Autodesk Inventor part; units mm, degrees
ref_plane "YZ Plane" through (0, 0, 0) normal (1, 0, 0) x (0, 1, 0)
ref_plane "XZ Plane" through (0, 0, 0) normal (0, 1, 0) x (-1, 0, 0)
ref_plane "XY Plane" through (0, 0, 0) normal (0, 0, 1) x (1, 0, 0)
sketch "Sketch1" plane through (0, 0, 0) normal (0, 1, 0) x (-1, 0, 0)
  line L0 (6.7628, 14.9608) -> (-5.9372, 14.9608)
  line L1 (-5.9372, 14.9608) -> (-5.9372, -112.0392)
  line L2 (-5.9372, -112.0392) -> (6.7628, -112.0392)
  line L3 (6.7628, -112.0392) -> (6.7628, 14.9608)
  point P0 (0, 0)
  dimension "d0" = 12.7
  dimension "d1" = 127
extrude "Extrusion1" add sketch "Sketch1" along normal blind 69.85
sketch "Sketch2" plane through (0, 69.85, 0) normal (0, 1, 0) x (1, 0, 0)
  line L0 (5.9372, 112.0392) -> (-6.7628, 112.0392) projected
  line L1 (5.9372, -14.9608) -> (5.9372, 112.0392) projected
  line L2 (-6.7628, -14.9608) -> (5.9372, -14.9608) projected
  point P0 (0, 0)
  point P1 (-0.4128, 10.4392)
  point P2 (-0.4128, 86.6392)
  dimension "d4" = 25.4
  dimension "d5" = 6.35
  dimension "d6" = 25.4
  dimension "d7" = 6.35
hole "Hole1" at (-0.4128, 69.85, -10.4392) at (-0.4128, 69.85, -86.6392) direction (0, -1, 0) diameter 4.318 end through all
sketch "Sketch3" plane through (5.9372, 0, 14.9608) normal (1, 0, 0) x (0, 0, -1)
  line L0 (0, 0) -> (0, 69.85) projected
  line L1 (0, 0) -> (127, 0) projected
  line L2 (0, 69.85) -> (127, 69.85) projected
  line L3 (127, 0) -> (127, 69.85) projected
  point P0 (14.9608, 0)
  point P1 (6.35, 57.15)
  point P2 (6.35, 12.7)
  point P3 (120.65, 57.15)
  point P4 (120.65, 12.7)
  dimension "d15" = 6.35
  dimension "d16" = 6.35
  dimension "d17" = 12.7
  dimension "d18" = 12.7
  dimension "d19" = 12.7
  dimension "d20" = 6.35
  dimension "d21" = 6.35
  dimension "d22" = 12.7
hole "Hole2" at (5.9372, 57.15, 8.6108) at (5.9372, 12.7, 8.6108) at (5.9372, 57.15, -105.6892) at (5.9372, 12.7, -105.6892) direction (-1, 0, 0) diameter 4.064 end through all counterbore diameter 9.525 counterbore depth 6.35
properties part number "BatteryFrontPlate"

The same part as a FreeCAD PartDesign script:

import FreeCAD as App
import Part
import Sketcher

V = App.Vector
Q = App.Units.Quantity

doc = App.newDocument("Part")
body = doc.addObject("PartDesign::Body", "Body")

sketch1 = body.newObject("Sketcher::SketchObject", "Sketch")
sketch1.AttachmentSupport = (doc.getObject("XZ_Plane"), [""])
sketch1.MapMode = "FlatFace"
sketch1.addGeometry([
    Part.LineSegment(V(-6.7628, -112.0392, 0), V(-6.7628, 14.9608, 0)),
    Part.LineSegment(V(-6.7628, 14.9608, 0), V(5.9372, 14.9608, 0)),
    Part.LineSegment(V(5.9372, 14.9608, 0), V(5.9372, -112.0392, 0)),
    Part.LineSegment(V(5.9372, -112.0392, 0), V(-6.7628, -112.0392, 0)),
], False)
sketch1.addConstraint([
    Sketcher.Constraint("Coincident", 0, 2, 1, 1),
    Sketcher.Constraint("Coincident", 1, 2, 2, 1),
    Sketcher.Constraint("Coincident", 2, 2, 3, 1),
    Sketcher.Constraint("Coincident", 3, 2, 0, 1),
    Sketcher.Constraint("Vertical", 0),
    Sketcher.Constraint("Horizontal", 1),
    Sketcher.Constraint("Vertical", 2),
    Sketcher.Constraint("Horizontal", 3),
    Sketcher.Constraint("DistanceY", 0, 1, 0, 2, Q("5 in")),
    Sketcher.Constraint("DistanceX", 1, 1, 1, 2, Q("0.5 in")),
    Sketcher.Constraint("DistanceY", -1, 1, 0, 2, Q("0.589 in")),
    Sketcher.Constraint("DistanceX", 0, 2, -1, 1, Q("6.7628 mm")),
])
pad1 = body.newObject("PartDesign::Pad", "Pad")
pad1.Profile = sketch1
pad1.Length = Q("2.75 in")
pad1.Reversed = True

sketch2 = body.newObject("Sketcher::SketchObject", "Sketch001")
sketch2.AttachmentSupport = (doc.getObject("XZ_Plane"), [""])
sketch2.MapMode = "FlatFace"
sketch2.AttachmentOffset = App.Placement(V(0, 0, -2.75 * 25.4), App.Rotation())
sketch2.addGeometry([
    Part.Circle(V(-0.4128, -10.4392, 0), V(0, 0, 1), 2.159),
    Part.Circle(V(-0.4128, -86.6392, 0), V(0, 0, 1), 2.159),
], False)
sketch2.addConstraint([
    Sketcher.Constraint("Equal", 0, 1),
    Sketcher.Constraint("Vertical", 0, 3, 1, 3),
    Sketcher.Constraint("Diameter", 0, Q("0.17 in")),
    Sketcher.Constraint("DistanceY", 1, 3, 0, 3, Q("3 in")),
    Sketcher.Constraint("DistanceY", 0, 3, -1, 1, Q("0.411 in")),
    Sketcher.Constraint("DistanceX", 0, 3, -1, 1, Q("0.4128 mm")),
])
doc.recompute()
hole = body.newObject("PartDesign::Hole", "Hole")
hole.Profile = sketch2
hole.ThreadType = "None"
hole.Diameter = Q("0.17 in")
hole.DepthType = "ThroughAll"
hole.Reversed = True

sketch3 = body.newObject("Sketcher::SketchObject", "Sketch002")
sketch3.AttachmentSupport = (doc.getObject("YZ_Plane"), [""])
sketch3.MapMode = "FlatFace"
sketch3.AttachmentOffset = App.Placement(V(0, 0, 5.9372), App.Rotation())
sketch3.addGeometry([
    Part.Circle(V(57.15, 8.6108, 0), V(0, 0, 1), 2.032),
    Part.Circle(V(12.7, 8.6108, 0), V(0, 0, 1), 2.032),
    Part.Circle(V(57.15, -105.6892, 0), V(0, 0, 1), 2.032),
    Part.Circle(V(12.7, -105.6892, 0), V(0, 0, 1), 2.032),
], False)
sketch3.addConstraint([
    Sketcher.Constraint("Equal", 0, 1),
    Sketcher.Constraint("Equal", 1, 2),
    Sketcher.Constraint("Equal", 2, 3),
    Sketcher.Constraint("Horizontal", 0, 3, 1, 3),
    Sketcher.Constraint("Horizontal", 2, 3, 3, 3),
    Sketcher.Constraint("Vertical", 0, 3, 2, 3),
    Sketcher.Constraint("Vertical", 1, 3, 3, 3),
    Sketcher.Constraint("Diameter", 0, Q("0.16 in")),
    Sketcher.Constraint("DistanceX", -1, 1, 1, 3, Q("0.5 in")),
    Sketcher.Constraint("DistanceY", 2, 3, 0, 3, Q("4.5 in")),
    Sketcher.Constraint("DistanceX", -1, 1, 0, 3, Q("2.25 in")),
    Sketcher.Constraint("DistanceY", -1, 1, 0, 3, Q("0.339 in")),
])
doc.recompute()
hole2 = body.newObject("PartDesign::Hole", "Hole001")
hole2.Profile = sketch3
hole2.ThreadType = "None"
hole2.Diameter = Q("0.16 in")
hole2.DepthType = "ThroughAll"
hole2.HoleCutType = "Counterbore"
hole2.HoleCutDiameter = Q("0.375 in")
hole2.HoleCutDepth = Q("0.25 in")

doc.recompute()
